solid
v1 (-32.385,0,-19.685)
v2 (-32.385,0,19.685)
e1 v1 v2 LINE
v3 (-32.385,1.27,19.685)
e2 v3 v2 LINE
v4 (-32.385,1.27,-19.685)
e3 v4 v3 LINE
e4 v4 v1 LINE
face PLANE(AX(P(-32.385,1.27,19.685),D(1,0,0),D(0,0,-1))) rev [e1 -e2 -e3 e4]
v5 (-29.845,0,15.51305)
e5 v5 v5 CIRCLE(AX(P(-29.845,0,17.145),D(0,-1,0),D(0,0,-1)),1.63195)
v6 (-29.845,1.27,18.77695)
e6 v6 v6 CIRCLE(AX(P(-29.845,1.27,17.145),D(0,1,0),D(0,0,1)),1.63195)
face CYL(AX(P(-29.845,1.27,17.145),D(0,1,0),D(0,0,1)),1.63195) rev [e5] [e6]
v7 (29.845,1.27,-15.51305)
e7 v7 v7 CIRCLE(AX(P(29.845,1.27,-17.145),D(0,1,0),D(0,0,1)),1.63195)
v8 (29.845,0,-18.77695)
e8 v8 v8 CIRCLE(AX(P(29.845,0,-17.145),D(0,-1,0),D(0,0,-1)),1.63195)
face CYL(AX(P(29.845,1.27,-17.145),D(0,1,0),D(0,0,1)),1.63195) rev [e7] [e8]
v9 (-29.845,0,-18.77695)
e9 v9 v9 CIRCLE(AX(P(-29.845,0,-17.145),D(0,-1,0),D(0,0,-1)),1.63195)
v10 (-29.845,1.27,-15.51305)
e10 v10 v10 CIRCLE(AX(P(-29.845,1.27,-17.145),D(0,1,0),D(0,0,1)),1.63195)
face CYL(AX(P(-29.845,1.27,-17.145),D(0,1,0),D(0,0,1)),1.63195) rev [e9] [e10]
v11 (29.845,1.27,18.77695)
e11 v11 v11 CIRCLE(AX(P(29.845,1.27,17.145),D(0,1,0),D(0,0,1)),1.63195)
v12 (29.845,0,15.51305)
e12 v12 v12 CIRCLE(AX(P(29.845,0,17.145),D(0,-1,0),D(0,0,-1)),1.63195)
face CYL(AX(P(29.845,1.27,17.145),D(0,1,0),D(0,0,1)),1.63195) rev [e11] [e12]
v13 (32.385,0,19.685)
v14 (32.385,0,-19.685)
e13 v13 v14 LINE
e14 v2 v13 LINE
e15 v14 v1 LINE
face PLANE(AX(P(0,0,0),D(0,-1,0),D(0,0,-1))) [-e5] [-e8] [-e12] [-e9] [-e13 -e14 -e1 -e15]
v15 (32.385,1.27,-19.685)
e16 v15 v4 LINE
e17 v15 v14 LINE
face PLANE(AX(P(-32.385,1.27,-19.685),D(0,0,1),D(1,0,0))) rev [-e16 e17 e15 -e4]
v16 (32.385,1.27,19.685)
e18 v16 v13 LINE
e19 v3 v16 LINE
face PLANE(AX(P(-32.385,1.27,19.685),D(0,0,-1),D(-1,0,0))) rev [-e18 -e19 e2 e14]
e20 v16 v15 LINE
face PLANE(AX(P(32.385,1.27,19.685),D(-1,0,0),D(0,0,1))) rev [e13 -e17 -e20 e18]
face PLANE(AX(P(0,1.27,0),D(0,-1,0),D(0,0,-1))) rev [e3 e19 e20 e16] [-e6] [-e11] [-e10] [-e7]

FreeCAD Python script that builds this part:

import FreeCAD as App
import Part
import Sketcher
from FreeCAD import Vector
Q = App.Units.Quantity


def add_polygon(sketch, points):
    """Adds a closed chain of lines whose ends are joined by coincident constraints."""
    first, n = sketch.GeometryCount, len(points)
    for a, b in zip(points, points[1:] + points[:1]):
        sketch.addGeometry(Part.LineSegment(App.Vector(*a, 0), App.Vector(*b, 0)), False)
    for i in range(n):
        sketch.addConstraint(Sketcher.Constraint("Coincident", first + i, 2, first + (i + 1) % n, 1))

doc = App.newDocument("Part")
body = doc.addObject("PartDesign::Body", "Body")

# Sketch on XZ plane
sketch1 = body.newObject("Sketcher::SketchObject", "Sketch")
sketch1.AttachmentSupport = (doc.getObject("XZ_Plane"), [""])
sketch1.MapMode = "FlatFace"
add_polygon(sketch1, [(-32.385, -19.685), (-32.385, 19.685), (32.385, 19.685), (32.385, -19.685)])  # lines 0-3
sketch1.addConstraint(Sketcher.Constraint("Vertical", 0))
sketch1.addConstraint(Sketcher.Constraint("Horizontal", 1))
sketch1.addConstraint(Sketcher.Constraint("Vertical", 2))
sketch1.addConstraint(Sketcher.Constraint("Horizontal", 3))
sketch1.addConstraint(Sketcher.Constraint("Symmetric", 0, 2, 2, 2, -1, 1))
sketch1.addConstraint(Sketcher.Constraint("DistanceX", 1, 1, 1, 2, Q("2.55 in")))
sketch1.addConstraint(Sketcher.Constraint("DistanceY", 0, 1, 0, 2, Q("1.55 in")))
pad1 = body.newObject("PartDesign::Pad", "Pad")
pad1.Profile = sketch1
pad1.Length = Q("0.05 in")
pad1.Reversed = True

# Sketch on XZ plane
sketch2 = body.newObject("Sketcher::SketchObject", "Sketch001")
sketch2.AttachmentSupport = (doc.getObject("XZ_Plane"), [""])
sketch2.MapMode = "FlatFace"
sketch2.AttachmentOffset = App.Placement(Vector(0, 0, -0.05 * 25.4), App.Rotation())
sketch2.addGeometry(Part.Circle(Vector(-29.845, -17.145, 0), Vector(0, 0, 1), 1.63195), False)
sketch2.addGeometry(Part.Circle(Vector(-29.845, 17.145, 0), Vector(0, 0, 1), 1.63195), False)
sketch2.addGeometry(Part.Circle(Vector(29.845, 17.145, 0), Vector(0, 0, 1), 1.63195), False)
sketch2.addGeometry(Part.Circle(Vector(29.845, -17.145, 0), Vector(0, 0, 1), 1.63195), False)
sketch2.addConstraint(Sketcher.Constraint("Equal", 0, 1))
sketch2.addConstraint(Sketcher.Constraint("Equal", 1, 2))
sketch2.addConstraint(Sketcher.Constraint("Equal", 2, 3))
sketch2.addConstraint(Sketcher.Constraint("Symmetric", 0, 3, 2, 3, -1, 1))
sketch2.addConstraint(Sketcher.Constraint("Symmetric", 1, 3, 3, 3, -1, 1))
sketch2.addConstraint(Sketcher.Constraint("Symmetric", 1, 3, 2, 3, -2))
sketch2.addConstraint(Sketcher.Constraint("Diameter", 0, Q("0.1285 in")))
sketch2.addConstraint(Sketcher.Constraint("DistanceY", 0, 3, 1, 3, Q("1.35 in")))
sketch2.addConstraint(Sketcher.Constraint("DistanceX", 1, 3, 2, 3, Q("2.35 in")))
doc.recompute()
hole = body.newObject("PartDesign::Hole", "Hole")
hole.Profile = sketch2
hole.ThreadType = "None"
hole.Diameter = Q("0.1285 in")
hole.DepthType = "Dimension"
hole.Depth = Q("0.299 in")
hole.DrillPoint = "Angled"
hole.DrillPointAngle = 118
hole.Reversed = True

doc.recompute()
